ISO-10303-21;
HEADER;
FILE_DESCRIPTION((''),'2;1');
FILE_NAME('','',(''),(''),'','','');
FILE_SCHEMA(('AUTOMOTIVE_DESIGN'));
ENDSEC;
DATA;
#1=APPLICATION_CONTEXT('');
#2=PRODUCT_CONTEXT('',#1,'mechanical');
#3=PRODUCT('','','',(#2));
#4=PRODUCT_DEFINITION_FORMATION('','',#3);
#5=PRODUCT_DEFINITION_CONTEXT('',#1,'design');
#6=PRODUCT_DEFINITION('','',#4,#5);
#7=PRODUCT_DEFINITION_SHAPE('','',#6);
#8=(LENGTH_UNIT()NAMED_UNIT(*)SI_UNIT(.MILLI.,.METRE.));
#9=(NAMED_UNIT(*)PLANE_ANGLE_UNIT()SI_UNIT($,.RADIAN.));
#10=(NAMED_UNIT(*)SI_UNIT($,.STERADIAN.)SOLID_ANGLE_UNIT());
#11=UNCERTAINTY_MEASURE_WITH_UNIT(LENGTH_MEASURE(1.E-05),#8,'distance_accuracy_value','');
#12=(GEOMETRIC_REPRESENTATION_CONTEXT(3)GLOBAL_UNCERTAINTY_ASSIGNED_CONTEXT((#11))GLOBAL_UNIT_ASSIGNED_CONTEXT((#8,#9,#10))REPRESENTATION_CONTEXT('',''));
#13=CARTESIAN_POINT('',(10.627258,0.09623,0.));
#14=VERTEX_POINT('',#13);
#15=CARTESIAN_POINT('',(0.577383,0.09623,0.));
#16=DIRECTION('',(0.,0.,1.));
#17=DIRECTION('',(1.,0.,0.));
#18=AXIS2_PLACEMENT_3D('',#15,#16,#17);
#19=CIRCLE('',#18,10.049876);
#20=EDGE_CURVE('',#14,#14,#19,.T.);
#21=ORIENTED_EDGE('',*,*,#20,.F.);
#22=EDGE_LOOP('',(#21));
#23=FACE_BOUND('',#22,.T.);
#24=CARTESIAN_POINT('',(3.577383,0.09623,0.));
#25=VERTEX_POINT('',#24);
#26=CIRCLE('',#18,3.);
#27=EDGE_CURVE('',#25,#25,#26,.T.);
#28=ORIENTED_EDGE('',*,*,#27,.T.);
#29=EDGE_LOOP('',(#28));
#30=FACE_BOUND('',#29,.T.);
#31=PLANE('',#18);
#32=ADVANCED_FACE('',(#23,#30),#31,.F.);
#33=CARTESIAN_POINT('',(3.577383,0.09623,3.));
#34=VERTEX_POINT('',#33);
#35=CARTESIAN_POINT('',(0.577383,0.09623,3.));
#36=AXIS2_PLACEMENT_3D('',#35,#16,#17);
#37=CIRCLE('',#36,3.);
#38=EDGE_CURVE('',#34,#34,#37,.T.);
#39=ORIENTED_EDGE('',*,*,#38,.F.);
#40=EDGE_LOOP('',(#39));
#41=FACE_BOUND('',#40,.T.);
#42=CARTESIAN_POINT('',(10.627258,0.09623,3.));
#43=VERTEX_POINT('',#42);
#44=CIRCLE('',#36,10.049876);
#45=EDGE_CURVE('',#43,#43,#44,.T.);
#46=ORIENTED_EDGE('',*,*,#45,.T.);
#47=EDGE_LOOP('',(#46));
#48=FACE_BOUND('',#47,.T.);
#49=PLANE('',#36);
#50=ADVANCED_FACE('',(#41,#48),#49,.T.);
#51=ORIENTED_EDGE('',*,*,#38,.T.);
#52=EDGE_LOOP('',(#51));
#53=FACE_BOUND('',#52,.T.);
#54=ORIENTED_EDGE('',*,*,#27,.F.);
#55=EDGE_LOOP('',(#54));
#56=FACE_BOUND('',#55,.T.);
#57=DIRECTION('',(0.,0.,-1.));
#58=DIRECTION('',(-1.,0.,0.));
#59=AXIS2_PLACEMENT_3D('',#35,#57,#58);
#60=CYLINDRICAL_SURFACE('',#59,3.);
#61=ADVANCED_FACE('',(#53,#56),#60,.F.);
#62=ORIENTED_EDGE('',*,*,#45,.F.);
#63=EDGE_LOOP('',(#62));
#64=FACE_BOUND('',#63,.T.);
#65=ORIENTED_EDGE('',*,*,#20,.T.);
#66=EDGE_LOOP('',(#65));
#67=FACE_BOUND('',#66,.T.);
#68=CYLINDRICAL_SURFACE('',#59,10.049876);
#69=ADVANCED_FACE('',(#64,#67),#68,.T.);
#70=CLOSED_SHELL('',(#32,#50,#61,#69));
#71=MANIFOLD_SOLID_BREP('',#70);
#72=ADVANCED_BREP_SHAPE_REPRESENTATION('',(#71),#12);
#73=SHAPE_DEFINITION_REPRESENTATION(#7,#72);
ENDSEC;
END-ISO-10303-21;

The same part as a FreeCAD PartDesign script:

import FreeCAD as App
import Part
import Sketcher

V = App.Vector
Q = App.Units.Quantity

doc = App.newDocument("Part")
body = doc.addObject("PartDesign::Body", "Body")

# Sketch on XY plane
sketch1 = body.newObject("Sketcher::SketchObject", "Sketch")
sketch1.AttachmentSupport = (doc.getObject("XY_Plane"), [""])
sketch1.MapMode = "FlatFace"
sketch1.addGeometry([
    Part.Circle(V(0.577383, 0.09623, 0), V(0, 0, 1), 10.049876),
    Part.Circle(V(0.577383, 0.09623, 0), V(0, 0, 1), 3),
], False)
sketch1.addConstraint([
    Sketcher.Constraint("Coincident", 1, 3, 0, 3),
    Sketcher.Constraint("Diameter", 1, Q("6 mm")),
    Sketcher.Constraint("Diameter", 0, Q("20.099751 mm")),
    Sketcher.Constraint("DistanceY", -1, 1, 0, 3, Q("0.09623 mm")),
    Sketcher.Constraint("DistanceX", -1, 1, 0, 3, Q("0.577383 mm")),
])
pad1 = body.newObject("PartDesign::Pad", "Pad")
pad1.Profile = sketch1
pad1.Length = 3

doc.recompute()
